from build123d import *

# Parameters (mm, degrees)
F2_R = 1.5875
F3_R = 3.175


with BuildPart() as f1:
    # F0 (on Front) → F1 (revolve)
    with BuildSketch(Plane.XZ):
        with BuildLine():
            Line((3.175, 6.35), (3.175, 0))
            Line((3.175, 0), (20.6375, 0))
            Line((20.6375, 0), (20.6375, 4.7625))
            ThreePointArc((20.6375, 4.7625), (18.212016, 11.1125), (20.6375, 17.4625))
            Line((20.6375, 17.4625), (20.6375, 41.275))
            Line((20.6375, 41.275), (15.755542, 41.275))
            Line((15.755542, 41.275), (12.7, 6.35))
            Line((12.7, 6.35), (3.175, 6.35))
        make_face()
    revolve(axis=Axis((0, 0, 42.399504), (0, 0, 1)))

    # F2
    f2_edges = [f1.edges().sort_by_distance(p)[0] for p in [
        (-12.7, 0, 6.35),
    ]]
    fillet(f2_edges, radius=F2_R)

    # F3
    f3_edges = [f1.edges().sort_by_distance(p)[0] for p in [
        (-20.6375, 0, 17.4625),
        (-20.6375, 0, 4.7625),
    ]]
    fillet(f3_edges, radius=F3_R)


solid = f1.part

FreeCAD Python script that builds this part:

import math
import FreeCAD as App
import Part
import Sketcher
from FreeCAD import Vector
Q = App.Units.Quantity


def edges_at(feature, points):
    """Names of the edges that pass closest to the given points."""
    edges = feature.Shape.Edges
    near = lambda p: min(range(len(edges)), key=lambda i: edges[i].distToShape(Part.Vertex(*p))[0])
    return sorted({f"Edge{near(p) + 1}" for p in points})

doc = App.newDocument("Part")
body = doc.addObject("PartDesign::Body", "Body")

sketch1 = doc.addObject("Sketcher::SketchObject", "Sketch")
body.addObject(sketch1)
sketch1.AttachmentSupport = (doc.XZ_Plane, [""])
sketch1.MapMode = "FlatFace"
sketch1.addGeometry([
    Part.LineSegment(Vector(3.175, 6.35, 0), Vector(3.175, 0, 0)),
    Part.LineSegment(Vector(3.175, 0, 0), Vector(20.6375, 0, 0)),
    Part.LineSegment(Vector(20.6375, 0, 0), Vector(20.6375, 4.7625, 0)),
    Part.ArcOfCircle(Part.Circle(Vector(27.737017, 11.1125, 0), Vector(0, 0, 1), 9.525001), math.radians(138.189688), math.radians(221.810312)),
    Part.LineSegment(Vector(20.6375, 17.4625, 0), Vector(20.6375, 41.275, 0)),
    Part.LineSegment(Vector(20.6375, 41.275, 0), Vector(15.755542, 41.275, 0)),
    Part.LineSegment(Vector(15.755542, 41.275, 0), Vector(12.7, 6.35, 0)),
    Part.LineSegment(Vector(12.7, 6.35, 0), Vector(3.175, 6.35, 0)),
], False)
sketch1.addConstraint([
    Sketcher.Constraint("Coincident", 0, 2, 1, 1),
    Sketcher.Constraint("Coincident", 1, 2, 2, 1),
    Sketcher.Constraint("Coincident", 2, 2, 3, 2),
    Sketcher.Constraint("Coincident", 3, 1, 4, 1),
    Sketcher.Constraint("Coincident", 4, 2, 5, 1),
    Sketcher.Constraint("Coincident", 5, 2, 6, 1),
    Sketcher.Constraint("Coincident", 6, 2, 7, 1),
    Sketcher.Constraint("Coincident", 7, 2, 0, 1),
    Sketcher.Constraint("Vertical", 0),
    Sketcher.Constraint("Horizontal", 1),
    Sketcher.Constraint("Vertical", 2),
    Sketcher.Constraint("Vertical", 4),
    Sketcher.Constraint("Horizontal", 5),
    Sketcher.Constraint("Horizontal", 7),
    Sketcher.Constraint("PointOnObject", 0, 2, -1),
    Sketcher.Constraint("Vertical", 2, 2, 3, 1),
    Sketcher.Constraint("Angle", 6, Q("-95.000001 deg")),
    Sketcher.Constraint("Radius", 3, Q("0.375 in")),
    Sketcher.Constraint("DistanceY", 0, 2, 0, 1, Q("0.25 in")),
    Sketcher.Constraint("DistanceX", -1, 1, 6, 2, Q("0.5 in")),
    Sketcher.Constraint("DistanceY", 2, 2, 3, 1, Q("0.5 in")),
    Sketcher.Constraint("DistanceX", 1, 1, 1, 2, Q("0.6875 in")),
    Sketcher.Constraint("DistanceX", 7, 2, 7, 1, Q("0.375 in")),
    Sketcher.Constraint("DistanceY", 2, 1, 2, 2, Q("0.1875 in")),
    Sketcher.Constraint("DistanceY", 4, 1, 4, 2, Q("0.9375 in")),
])
revolution = doc.addObject("PartDesign::Revolution", "Revolution")
body.addObject(revolution)
revolution.Profile = sketch1
revolution.ReferenceAxis = (sketch1, ["V_Axis"])
revolution.Angle = 360
doc.recompute()

fillet = doc.addObject("PartDesign::Fillet", "Fillet")
body.addObject(fillet)
fillet.Base = (revolution, edges_at(revolution, [(-12.7, 0, 6.35)]))
fillet.Radius = Q("0.0625 in")
doc.recompute()

fillet2 = doc.addObject("PartDesign::Fillet", "Fillet001")
body.addObject(fillet2)
fillet2.Base = (fillet, edges_at(fillet, [(-20.637, 0, 17.462), (-20.637, 0, 4.763)]))
fillet2.Radius = Q("0.125 in")

doc.recompute()
